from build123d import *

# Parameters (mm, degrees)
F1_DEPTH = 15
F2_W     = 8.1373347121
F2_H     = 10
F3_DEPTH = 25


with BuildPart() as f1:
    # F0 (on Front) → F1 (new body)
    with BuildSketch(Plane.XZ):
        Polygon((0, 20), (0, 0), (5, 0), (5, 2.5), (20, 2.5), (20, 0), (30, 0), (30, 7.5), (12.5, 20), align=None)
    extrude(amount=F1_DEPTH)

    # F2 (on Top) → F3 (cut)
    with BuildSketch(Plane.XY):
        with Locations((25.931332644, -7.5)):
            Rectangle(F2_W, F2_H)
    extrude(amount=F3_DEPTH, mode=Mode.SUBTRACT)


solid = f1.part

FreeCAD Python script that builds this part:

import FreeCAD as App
import Part
import Sketcher


def add_polygon(sketch, points):
    """Adds a closed chain of lines whose ends are joined by coincident constraints."""
    first, n = sketch.GeometryCount, len(points)
    for a, b in zip(points, points[1:] + points[:1]):
        sketch.addGeometry(Part.LineSegment(App.Vector(*a, 0), App.Vector(*b, 0)), False)
    for i in range(n):
        sketch.addConstraint(Sketcher.Constraint("Coincident", first + i, 2, first + (i + 1) % n, 1))

doc = App.newDocument("Part")
params = doc.addObject("Spreadsheet::Sheet", "Params")
for row, (alias, value) in enumerate([
    ("sketch1_width", "5 mm"),
    ("sketch1_width2", "15 mm"),
    ("sketch1_width3", "10 mm"),
    ("sketch1_height", "20 mm"),
    ("sketch1_width4", "12.5 mm"),
    ("pad1_length", "15 mm"),
    ("sketch2_height", "10 mm"),
    ("pocket1_length", "25 mm"),
], start=1):
    params.set(f"A{row}", alias)
    params.set(f"B{row}", "=" + value)
    params.setAlias(f"B{row}", alias)

body = doc.addObject("PartDesign::Body", "Body")

sketch1 = body.newObject("Sketcher::SketchObject", "Sketch")
sketch1.AttachmentSupport = (doc.getObject("XZ_Plane"), [""])
sketch1.MapMode = "FlatFace"
add_polygon(sketch1, [(0, 20), (0, 0), (5, 0), (5, 2.5), (20, 2.5), (20, 0), (30, 0), (30, 7.5), (12.5, 20)])
sketch1.addConstraint(Sketcher.Constraint("Vertical", 0))
sketch1.addConstraint(Sketcher.Constraint("Horizontal", 1))
sketch1.addConstraint(Sketcher.Constraint("Vertical", 2))
sketch1.addConstraint(Sketcher.Constraint("Horizontal", 3))
sketch1.addConstraint(Sketcher.Constraint("Vertical", 4))
sketch1.addConstraint(Sketcher.Constraint("Horizontal", 5))
sketch1.addConstraint(Sketcher.Constraint("Vertical", 6))
sketch1.addConstraint(Sketcher.Constraint("Horizontal", 8))
sketch1.addConstraint(Sketcher.Constraint("Coincident", 0, 2, -1, 1))
sketch1.addConstraint(Sketcher.Constraint("PointOnObject", 4, 2, -1))
sketch1.addConstraint(Sketcher.Constraint("DistanceX", 1, 1, 1, 2, 5.0))
sketch1.addConstraint(Sketcher.Constraint("DistanceX", 3, 1, 3, 2, 15.0))
sketch1.addConstraint(Sketcher.Constraint("DistanceX", 5, 1, 5, 2, 10.0))
sketch1.addConstraint(Sketcher.Constraint("DistanceY", 0, 2, 0, 1, 20.0))
sketch1.addConstraint(Sketcher.Constraint("DistanceX", 8, 2, 8, 1, 12.5))
sketch1.addConstraint(Sketcher.Constraint("DistanceY", 2, 1, 2, 2, 2.5))
sketch1.addConstraint(Sketcher.Constraint("DistanceY", 6, 1, 6, 2, 7.5))
sketch1.setExpression("Constraints[19]", "Params.sketch1_width")
sketch1.setExpression("Constraints[20]", "Params.sketch1_width2")
sketch1.setExpression("Constraints[21]", "Params.sketch1_width3")
sketch1.setExpression("Constraints[22]", "Params.sketch1_height")
sketch1.setExpression("Constraints[23]", "Params.sketch1_width4")
pad1 = body.newObject("PartDesign::Pad", "Pad")
pad1.Profile = sketch1
pad1.setExpression("Length", "Params.pad1_length")

sketch2 = body.newObject("Sketcher::SketchObject", "Sketch001")
sketch2.AttachmentSupport = (doc.getObject("XY_Plane"), [""])
sketch2.MapMode = "FlatFace"
add_polygon(sketch2, [(22, -2), (22, -12), (30, -12), (30, -2)])
sketch2.addConstraint(Sketcher.Constraint("Vertical", 0))
sketch2.addConstraint(Sketcher.Constraint("Horizontal", 1))
sketch2.addConstraint(Sketcher.Constraint("Vertical", 2))
sketch2.addConstraint(Sketcher.Constraint("Horizontal", 3))
sketch2.addConstraint(Sketcher.Constraint("DistanceY", 0, 2, 0, 1, 10.0))
sketch2.addConstraint(Sketcher.Constraint("DistanceX", -1, 1, 1, 2, 30.0))
sketch2.addConstraint(Sketcher.Constraint("DistanceY", 0, 2, -1, 1, 12.5))
sketch2.addConstraint(Sketcher.Constraint("DistanceX", 1, 1, 1, 2, 8.137335))
sketch2.setExpression("Constraints[8]", "Params.sketch2_height")
pocket1 = body.newObject("PartDesign::Pocket", "Pocket")
pocket1.Profile = sketch2
pocket1.setExpression("Length", "Params.pocket1_length")
pocket1.Reversed = True

doc.recompute()
